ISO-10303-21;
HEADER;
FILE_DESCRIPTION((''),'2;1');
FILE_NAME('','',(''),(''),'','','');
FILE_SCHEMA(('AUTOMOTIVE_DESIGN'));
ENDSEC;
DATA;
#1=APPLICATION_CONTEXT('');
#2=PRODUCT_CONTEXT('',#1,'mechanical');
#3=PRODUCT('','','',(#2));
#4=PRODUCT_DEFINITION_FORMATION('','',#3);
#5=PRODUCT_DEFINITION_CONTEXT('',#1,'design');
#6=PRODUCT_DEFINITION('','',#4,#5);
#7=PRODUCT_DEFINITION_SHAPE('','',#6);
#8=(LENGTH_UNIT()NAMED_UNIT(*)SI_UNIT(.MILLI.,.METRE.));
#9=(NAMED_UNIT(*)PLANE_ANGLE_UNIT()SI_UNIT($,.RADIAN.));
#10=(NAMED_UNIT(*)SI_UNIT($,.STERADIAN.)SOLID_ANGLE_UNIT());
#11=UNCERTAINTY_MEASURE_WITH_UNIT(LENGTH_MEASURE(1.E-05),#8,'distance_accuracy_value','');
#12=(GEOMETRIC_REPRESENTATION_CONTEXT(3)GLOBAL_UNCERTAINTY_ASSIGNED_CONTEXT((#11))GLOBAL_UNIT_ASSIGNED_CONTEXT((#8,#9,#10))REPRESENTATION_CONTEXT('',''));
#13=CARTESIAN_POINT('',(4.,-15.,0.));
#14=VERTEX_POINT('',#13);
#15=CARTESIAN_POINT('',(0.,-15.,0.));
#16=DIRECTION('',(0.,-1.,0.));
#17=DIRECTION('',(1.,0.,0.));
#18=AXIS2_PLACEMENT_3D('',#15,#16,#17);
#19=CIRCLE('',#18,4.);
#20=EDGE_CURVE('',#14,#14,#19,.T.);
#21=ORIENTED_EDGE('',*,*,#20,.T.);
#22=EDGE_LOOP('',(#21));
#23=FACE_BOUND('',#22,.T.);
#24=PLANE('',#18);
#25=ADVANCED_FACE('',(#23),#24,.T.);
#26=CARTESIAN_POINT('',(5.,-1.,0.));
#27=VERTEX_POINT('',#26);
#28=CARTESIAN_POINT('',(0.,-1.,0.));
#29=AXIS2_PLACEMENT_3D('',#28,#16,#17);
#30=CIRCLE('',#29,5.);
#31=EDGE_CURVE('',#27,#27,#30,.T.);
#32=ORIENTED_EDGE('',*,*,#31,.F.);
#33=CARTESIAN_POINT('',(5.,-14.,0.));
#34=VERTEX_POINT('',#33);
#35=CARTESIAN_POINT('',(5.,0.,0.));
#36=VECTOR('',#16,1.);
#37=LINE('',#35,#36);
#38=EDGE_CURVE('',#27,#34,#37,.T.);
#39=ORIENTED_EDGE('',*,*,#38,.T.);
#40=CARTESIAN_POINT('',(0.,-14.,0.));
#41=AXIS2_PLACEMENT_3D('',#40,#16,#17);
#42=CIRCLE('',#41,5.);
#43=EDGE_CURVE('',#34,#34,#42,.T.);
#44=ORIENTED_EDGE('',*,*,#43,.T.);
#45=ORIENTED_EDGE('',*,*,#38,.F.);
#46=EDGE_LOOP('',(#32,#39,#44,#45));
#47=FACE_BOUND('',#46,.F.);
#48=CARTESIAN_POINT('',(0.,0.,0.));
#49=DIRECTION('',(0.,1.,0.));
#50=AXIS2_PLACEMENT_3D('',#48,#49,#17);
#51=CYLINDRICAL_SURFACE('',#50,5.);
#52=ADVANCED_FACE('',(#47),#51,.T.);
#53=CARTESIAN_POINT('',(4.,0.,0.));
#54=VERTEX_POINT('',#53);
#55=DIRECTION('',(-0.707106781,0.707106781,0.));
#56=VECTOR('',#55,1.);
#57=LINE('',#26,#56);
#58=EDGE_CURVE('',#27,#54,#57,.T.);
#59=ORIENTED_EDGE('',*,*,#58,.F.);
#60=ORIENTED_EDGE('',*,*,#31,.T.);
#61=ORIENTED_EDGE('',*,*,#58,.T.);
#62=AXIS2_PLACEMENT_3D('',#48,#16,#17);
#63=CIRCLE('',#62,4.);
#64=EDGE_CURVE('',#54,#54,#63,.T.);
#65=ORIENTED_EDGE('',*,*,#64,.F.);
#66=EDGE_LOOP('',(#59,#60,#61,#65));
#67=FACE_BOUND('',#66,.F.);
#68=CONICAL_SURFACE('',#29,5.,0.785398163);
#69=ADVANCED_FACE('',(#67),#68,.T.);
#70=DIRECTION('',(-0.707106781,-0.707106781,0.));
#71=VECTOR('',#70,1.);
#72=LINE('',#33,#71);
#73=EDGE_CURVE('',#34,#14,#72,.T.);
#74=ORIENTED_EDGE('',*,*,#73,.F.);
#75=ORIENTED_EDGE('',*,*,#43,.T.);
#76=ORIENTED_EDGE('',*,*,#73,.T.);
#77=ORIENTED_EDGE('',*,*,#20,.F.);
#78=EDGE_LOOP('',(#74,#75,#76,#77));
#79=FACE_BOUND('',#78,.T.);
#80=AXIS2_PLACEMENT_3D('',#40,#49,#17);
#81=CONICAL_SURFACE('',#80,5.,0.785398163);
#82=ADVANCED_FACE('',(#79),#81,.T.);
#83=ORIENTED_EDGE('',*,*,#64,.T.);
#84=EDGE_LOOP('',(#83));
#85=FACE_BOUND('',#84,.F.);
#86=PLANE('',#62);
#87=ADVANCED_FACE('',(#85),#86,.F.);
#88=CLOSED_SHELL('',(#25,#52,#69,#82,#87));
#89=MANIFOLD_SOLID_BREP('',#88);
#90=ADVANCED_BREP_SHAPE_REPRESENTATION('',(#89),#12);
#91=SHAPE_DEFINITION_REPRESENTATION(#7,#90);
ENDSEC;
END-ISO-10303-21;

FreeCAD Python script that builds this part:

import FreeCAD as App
import Part
import Sketcher

V = App.Vector
Q = App.Units.Quantity


def edges_at(feature, points):
    """Names of the edges that pass closest to the given points."""
    edges = feature.Shape.Edges
    near = lambda p: min(range(len(edges)), key=lambda i: edges[i].distToShape(Part.Vertex(*p))[0])
    return sorted({f"Edge{near(p) + 1}" for p in points})

doc = App.newDocument("Part")
params = doc.addObject("Spreadsheet::Sheet", "Params")
for row, (alias, value) in enumerate([
    ("sketch1_diameter", "10 mm"),
    ("pad1_length", "15 mm"),
    ("chamfer_size", "1 mm"),
    ("chamfer2_size", "1 mm"),
], start=1):
    params.set(f"A{row}", alias)
    params.set(f"B{row}", "=" + value)
    params.setAlias(f"B{row}", alias)

body = doc.addObject("PartDesign::Body", "Body")

sketch1 = body.newObject("Sketcher::SketchObject", "Sketch")
sketch1.AttachmentSupport = (doc.getObject("XZ_Plane"), [""])
sketch1.MapMode = "FlatFace"
sketch1.addGeometry(Part.Circle(V(0, 0, 0), V(0, 0, 1), 5), False)
sketch1.addConstraint(Sketcher.Constraint("Coincident", 0, 3, -1, 1))
sketch1.addConstraint(Sketcher.Constraint("Diameter", 0, Q("10 mm")))
sketch1.setExpression("Constraints[1]", "Params.sketch1_diameter")
pad1 = body.newObject("PartDesign::Pad", "Pad")
pad1.Profile = sketch1
pad1.setExpression("Length", "Params.pad1_length")
doc.recompute()

chamfer = body.newObject("PartDesign::Chamfer", "Chamfer")
chamfer.Base = (pad1, edges_at(pad1, [(-5, 0, 0)]))
chamfer.setExpression("Size", "Params.chamfer_size")
doc.recompute()

chamfer2 = body.newObject("PartDesign::Chamfer", "Chamfer001")
chamfer2.Base = (chamfer, edges_at(chamfer, [(-5, -15, 0)]))
chamfer2.setExpression("Size", "Params.chamfer2_size")

doc.recompute()
